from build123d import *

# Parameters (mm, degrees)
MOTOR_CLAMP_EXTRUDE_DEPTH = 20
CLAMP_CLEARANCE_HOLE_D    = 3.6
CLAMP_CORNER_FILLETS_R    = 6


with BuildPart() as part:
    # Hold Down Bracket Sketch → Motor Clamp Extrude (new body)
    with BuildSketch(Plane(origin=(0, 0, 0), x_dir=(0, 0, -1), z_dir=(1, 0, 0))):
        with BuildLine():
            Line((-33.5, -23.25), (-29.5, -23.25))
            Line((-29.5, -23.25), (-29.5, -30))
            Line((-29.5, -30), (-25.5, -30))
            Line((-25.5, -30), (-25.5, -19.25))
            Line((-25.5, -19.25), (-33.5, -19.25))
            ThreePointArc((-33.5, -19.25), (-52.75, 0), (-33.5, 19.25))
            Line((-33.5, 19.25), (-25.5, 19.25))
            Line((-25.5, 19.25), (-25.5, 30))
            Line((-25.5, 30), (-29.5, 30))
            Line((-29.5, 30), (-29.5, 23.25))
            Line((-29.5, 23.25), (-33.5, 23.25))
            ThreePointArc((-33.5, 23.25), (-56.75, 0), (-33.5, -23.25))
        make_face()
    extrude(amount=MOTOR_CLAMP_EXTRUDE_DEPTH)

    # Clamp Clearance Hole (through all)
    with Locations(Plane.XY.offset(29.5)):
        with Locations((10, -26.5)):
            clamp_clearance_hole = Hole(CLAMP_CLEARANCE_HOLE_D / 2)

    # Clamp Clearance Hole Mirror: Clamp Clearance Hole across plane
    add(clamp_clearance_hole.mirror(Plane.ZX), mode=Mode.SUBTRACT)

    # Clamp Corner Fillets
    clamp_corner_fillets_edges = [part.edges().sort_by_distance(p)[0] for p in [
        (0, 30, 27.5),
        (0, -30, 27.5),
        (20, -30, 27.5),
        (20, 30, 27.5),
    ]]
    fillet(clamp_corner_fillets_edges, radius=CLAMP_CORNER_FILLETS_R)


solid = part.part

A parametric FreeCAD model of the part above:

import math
import FreeCAD as App
import Part
import Sketcher

V = App.Vector
Q = App.Units.Quantity


def edges_at(feature, points):
    """Names of the edges that pass closest to the given points."""
    edges = feature.Shape.Edges
    near = lambda p: min(range(len(edges)), key=lambda i: edges[i].distToShape(Part.Vertex(*p))[0])
    return sorted({f"Edge{near(p) + 1}" for p in points})

doc = App.newDocument("Part")
body = doc.addObject("PartDesign::Body", "Body")

# Sketch on YZ plane
sketch1 = body.newObject("Sketcher::SketchObject", "Sketch")
sketch1.AttachmentSupport = (doc.getObject("YZ_Plane"), [""])
sketch1.MapMode = "FlatFace"
sketch1.addGeometry([
    Part.LineSegment(V(-23.2, 33.5, 0), V(-23.2, 29.5, 0)),  # 0
    Part.LineSegment(V(-23.2, 29.5, 0), V(-30, 29.5, 0)),  # 1
    Part.LineSegment(V(-30, 29.5, 0), V(-30, 25.5, 0)),  # 2
    Part.LineSegment(V(-30, 25.5, 0), V(-19.2, 25.5, 0)),  # 3
    Part.LineSegment(V(-19.2, 25.5, 0), V(-19.2, 33.5, 0)),  # 4
    Part.ArcOfCircle(Part.Circle(V(0, 33.5, 0), V(0, 0, 1), 19.2), math.radians(0), math.radians(180)),  # 5
    Part.LineSegment(V(19.2, 33.5, 0), V(19.2, 25.5, 0)),  # 6
    Part.LineSegment(V(19.2, 25.5, 0), V(30, 25.5, 0)),  # 7
    Part.LineSegment(V(30, 25.5, 0), V(30, 29.5, 0)),  # 8
    Part.LineSegment(V(30, 29.5, 0), V(23.2, 29.5, 0)),  # 9
    Part.LineSegment(V(23.2, 29.5, 0), V(23.2, 33.5, 0)),  # 10
    Part.ArcOfCircle(Part.Circle(V(0, 33.5, 0), V(0, 0, 1), 23.2), math.radians(0), math.radians(180)),  # 11
], False)
sketch1.addConstraint([
    Sketcher.Constraint("Coincident", 0, 2, 1, 1),
    Sketcher.Constraint("Coincident", 1, 2, 2, 1),
    Sketcher.Constraint("Coincident", 2, 2, 3, 1),
    Sketcher.Constraint("Coincident", 3, 2, 4, 1),
    Sketcher.Constraint("Tangent", 4, 2, 5, 2),
    Sketcher.Constraint("Tangent", 5, 1, 6, 1),
    Sketcher.Constraint("Coincident", 6, 2, 7, 1),
    Sketcher.Constraint("Coincident", 7, 2, 8, 1),
    Sketcher.Constraint("Coincident", 8, 2, 9, 1),
    Sketcher.Constraint("Coincident", 9, 2, 10, 1),
    Sketcher.Constraint("Tangent", 10, 2, 11, 1),
    Sketcher.Constraint("Tangent", 11, 2, 0, 1),
    Sketcher.Constraint("Vertical", 0),
    Sketcher.Constraint("Horizontal", 1),
    Sketcher.Constraint("Vertical", 2),
    Sketcher.Constraint("Horizontal", 3),
    Sketcher.Constraint("Vertical", 4),
    Sketcher.Constraint("Vertical", 6),
    Sketcher.Constraint("Horizontal", 7),
    Sketcher.Constraint("Vertical", 8),
    Sketcher.Constraint("Horizontal", 9),
    Sketcher.Constraint("Vertical", 10),
    Sketcher.Constraint("Coincident", 11, 3, 5, 3),
    Sketcher.Constraint("Symmetric", 3, 2, 6, 2, -2),
    Sketcher.Constraint("Symmetric", 1, 2, 8, 2, -2),
    Sketcher.Constraint("Equal", 0, 2),
    Sketcher.Constraint("DistanceY", 0, 2, 0, 1, Q("4 mm")),
    Sketcher.Constraint("Radius", 5, Q("19.25 mm")),
    Sketcher.Constraint("Radius", 11, Q("23.25 mm")),
    Sketcher.Constraint("DistanceX", 1, 2, -1, 1, Q("30 mm")),
    Sketcher.Constraint("DistanceY", -1, 1, 5, 3, Q("33.5 mm")),
])
pad1 = body.newObject("PartDesign::Pad", "Pad")
pad1.Profile = sketch1
pad1.Length = 20

# Sketch on XY plane
sketch2 = body.newObject("Sketcher::SketchObject", "Sketch001")
sketch2.AttachmentSupport = (doc.getObject("XY_Plane"), [""])
sketch2.MapMode = "FlatFace"
sketch2.AttachmentOffset = App.Placement(V(0, 0, 29.5), App.Rotation())
sketch2.addGeometry(Part.Circle(V(10, -26.5, 0), V(0, 0, 1), 1.8), False)
sketch2.addConstraint([
    Sketcher.Constraint("Diameter", 0, Q("3.6 mm")),
    Sketcher.Constraint("DistanceX", -1, 1, 0, 3, Q("10 mm")),
    Sketcher.Constraint("DistanceY", 0, 3, -1, 1, Q("26.5 mm")),
])
doc.recompute()
hole = body.newObject("PartDesign::Hole", "Hole")
hole.Profile = sketch2
hole.ThreadType = "None"
hole.Diameter = 3.6
hole.DepthType = "ThroughAll"
doc.recompute()

mirrored = body.newObject("PartDesign::Mirrored", "Mirrored")
mirrored.Originals = [hole]
mirrored.MirrorPlane = (doc.getObject("XZ_Plane"), [""])
body.Tip = mirrored
doc.recompute()

fillet = body.newObject("PartDesign::Fillet", "Fillet")
fillet.Base = (mirrored, edges_at(mirrored, [
    (0, 30, 27.5),
    (0, -30, 27.5),
    (20, -30, 27.5),
    (20, 30, 27.5),
]))
fillet.Radius = 6

doc.recompute()
